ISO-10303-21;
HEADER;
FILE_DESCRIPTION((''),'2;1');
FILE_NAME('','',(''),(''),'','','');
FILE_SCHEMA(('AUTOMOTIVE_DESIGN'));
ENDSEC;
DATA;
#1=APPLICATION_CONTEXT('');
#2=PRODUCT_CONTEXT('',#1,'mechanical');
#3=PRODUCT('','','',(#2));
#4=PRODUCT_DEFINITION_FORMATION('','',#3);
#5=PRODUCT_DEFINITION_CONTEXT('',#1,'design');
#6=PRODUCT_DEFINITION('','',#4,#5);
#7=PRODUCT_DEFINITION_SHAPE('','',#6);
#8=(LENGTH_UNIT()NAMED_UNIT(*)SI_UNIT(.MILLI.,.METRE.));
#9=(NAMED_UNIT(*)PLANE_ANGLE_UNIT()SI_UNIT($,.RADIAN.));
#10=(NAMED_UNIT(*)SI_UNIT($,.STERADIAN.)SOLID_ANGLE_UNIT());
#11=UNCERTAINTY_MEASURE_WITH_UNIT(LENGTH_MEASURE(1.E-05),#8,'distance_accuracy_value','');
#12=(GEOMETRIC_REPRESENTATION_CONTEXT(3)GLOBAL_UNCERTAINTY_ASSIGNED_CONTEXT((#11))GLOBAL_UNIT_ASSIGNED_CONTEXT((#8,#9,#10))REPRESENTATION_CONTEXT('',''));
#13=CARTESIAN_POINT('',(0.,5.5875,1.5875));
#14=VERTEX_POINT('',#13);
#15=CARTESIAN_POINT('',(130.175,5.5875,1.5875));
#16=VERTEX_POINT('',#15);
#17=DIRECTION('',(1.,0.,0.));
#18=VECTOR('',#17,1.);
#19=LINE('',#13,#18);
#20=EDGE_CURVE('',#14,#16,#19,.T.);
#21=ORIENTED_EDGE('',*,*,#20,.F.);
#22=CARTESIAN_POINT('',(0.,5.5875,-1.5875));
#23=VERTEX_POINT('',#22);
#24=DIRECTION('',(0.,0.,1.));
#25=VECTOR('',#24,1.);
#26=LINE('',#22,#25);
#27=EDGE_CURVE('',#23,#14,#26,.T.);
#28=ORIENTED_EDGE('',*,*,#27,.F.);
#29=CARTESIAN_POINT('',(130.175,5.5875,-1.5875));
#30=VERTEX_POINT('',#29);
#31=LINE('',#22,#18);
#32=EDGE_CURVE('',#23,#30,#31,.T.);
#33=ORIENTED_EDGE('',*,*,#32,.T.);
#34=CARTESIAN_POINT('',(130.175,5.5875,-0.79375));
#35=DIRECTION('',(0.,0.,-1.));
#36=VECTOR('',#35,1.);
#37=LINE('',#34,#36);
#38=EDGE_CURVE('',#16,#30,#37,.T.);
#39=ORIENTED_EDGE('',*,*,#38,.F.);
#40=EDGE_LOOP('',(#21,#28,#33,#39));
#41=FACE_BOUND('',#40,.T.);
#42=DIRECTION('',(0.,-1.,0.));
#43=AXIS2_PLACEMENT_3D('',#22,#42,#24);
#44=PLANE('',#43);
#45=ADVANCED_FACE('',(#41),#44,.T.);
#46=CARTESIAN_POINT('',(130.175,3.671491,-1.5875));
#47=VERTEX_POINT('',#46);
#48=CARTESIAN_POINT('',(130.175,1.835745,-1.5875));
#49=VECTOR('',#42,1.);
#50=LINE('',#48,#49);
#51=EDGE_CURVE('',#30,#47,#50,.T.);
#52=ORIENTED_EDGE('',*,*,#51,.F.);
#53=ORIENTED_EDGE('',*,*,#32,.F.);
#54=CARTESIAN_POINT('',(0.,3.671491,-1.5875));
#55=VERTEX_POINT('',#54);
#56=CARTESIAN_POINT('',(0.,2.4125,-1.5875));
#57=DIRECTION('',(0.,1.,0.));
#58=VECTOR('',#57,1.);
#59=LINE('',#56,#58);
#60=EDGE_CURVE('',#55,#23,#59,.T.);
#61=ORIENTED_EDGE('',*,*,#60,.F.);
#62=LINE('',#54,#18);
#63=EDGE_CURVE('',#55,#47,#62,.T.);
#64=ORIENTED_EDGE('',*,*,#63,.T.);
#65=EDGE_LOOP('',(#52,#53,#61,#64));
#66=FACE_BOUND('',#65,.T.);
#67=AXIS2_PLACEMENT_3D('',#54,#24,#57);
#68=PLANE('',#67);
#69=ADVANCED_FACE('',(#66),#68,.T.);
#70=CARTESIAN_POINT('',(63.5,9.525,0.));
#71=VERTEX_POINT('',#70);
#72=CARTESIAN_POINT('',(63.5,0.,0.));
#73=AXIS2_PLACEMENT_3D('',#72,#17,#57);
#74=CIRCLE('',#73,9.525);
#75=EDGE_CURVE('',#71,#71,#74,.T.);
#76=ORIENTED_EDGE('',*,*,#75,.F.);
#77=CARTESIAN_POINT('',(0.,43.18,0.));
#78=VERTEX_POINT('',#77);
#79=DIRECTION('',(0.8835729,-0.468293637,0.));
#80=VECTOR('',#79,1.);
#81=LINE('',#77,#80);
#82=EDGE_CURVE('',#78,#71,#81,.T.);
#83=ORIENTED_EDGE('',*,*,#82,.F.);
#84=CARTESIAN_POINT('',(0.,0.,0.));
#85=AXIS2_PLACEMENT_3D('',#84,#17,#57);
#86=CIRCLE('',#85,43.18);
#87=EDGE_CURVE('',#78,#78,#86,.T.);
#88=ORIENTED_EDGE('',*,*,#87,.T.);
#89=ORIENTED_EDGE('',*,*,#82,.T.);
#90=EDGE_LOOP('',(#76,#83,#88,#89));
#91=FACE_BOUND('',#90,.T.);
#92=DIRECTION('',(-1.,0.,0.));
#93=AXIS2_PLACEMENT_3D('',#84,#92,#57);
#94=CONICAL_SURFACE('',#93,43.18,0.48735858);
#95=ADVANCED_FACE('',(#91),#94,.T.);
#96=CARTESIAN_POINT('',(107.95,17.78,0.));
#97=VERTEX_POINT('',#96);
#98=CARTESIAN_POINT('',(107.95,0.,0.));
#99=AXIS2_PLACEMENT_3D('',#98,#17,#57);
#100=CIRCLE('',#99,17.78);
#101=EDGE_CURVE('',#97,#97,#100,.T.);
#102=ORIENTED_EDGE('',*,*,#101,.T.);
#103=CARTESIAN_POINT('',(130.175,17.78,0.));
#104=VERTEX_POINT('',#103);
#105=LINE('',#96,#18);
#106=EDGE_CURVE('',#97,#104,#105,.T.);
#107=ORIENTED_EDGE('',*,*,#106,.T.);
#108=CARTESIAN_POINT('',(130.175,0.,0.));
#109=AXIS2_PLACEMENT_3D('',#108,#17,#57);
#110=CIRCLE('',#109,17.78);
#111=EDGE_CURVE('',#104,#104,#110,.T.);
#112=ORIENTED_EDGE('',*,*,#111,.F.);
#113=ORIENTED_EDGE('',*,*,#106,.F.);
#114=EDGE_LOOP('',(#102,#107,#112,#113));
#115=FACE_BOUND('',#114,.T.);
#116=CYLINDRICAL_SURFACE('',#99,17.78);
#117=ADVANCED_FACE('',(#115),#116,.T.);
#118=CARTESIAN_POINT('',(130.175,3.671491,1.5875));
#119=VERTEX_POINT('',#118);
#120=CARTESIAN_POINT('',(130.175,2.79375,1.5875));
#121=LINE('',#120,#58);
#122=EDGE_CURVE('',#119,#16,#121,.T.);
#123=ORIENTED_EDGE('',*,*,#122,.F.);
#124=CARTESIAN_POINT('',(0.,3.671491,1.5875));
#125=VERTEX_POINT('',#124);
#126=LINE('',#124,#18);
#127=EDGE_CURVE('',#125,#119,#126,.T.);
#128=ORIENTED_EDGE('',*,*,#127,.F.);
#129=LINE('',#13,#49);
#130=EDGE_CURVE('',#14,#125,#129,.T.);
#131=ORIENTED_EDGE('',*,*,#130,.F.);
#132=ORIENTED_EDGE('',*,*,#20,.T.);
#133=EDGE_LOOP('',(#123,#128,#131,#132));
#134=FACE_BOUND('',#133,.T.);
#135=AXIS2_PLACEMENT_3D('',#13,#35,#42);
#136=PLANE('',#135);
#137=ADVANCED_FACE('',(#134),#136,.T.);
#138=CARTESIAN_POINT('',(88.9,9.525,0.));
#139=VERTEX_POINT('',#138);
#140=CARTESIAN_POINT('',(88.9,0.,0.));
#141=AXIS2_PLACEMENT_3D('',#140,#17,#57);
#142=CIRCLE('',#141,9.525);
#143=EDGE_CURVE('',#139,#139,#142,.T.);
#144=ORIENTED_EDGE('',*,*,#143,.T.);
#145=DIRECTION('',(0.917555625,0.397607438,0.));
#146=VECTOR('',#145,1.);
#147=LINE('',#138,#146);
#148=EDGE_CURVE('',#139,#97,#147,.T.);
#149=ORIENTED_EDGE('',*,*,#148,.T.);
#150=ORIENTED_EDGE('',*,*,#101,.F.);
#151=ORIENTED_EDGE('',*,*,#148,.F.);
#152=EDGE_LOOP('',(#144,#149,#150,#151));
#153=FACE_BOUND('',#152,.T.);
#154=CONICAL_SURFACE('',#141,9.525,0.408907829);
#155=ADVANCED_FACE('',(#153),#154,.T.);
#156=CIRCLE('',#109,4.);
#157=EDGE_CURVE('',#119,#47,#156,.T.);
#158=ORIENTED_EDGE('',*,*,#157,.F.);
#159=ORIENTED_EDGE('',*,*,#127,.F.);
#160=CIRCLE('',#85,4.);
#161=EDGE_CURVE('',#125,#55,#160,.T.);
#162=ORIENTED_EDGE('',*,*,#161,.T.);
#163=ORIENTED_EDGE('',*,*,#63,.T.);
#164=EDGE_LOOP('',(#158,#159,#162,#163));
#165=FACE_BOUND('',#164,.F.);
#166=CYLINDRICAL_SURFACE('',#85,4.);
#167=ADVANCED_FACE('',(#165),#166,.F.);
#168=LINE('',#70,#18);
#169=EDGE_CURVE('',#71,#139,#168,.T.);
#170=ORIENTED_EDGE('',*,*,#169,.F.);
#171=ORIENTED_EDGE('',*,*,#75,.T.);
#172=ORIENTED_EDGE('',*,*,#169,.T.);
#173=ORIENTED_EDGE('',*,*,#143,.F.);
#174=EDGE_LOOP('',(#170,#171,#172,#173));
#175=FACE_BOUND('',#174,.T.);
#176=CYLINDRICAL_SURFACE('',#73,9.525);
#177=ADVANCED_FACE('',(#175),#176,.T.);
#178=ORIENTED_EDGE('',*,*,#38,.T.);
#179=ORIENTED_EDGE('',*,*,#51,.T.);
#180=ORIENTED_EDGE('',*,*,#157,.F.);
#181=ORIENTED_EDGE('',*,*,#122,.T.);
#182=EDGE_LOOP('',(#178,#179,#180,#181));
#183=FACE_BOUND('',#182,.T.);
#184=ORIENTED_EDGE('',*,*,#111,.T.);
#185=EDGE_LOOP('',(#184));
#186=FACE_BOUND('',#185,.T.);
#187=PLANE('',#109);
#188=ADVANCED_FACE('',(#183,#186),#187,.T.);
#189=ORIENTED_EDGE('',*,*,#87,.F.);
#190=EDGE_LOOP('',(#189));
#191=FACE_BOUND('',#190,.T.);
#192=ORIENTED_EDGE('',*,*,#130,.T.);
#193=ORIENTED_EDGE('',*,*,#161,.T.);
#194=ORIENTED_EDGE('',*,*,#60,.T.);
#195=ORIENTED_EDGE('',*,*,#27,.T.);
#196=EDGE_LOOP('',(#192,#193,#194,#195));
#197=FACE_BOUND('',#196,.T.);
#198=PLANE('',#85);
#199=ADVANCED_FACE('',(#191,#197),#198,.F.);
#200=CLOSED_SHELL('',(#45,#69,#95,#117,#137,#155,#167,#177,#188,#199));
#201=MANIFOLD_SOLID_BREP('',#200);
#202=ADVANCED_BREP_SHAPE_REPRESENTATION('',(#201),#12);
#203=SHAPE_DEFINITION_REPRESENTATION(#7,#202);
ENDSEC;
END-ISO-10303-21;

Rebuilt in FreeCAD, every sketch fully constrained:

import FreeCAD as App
import Part
import Sketcher

V = App.Vector
Q = App.Units.Quantity

doc = App.newDocument("Part")
body = doc.addObject("PartDesign::Body", "Body")

# Sketch on XY plane
sketch1 = body.newObject("Sketcher::SketchObject", "Sketch")
sketch1.AttachmentSupport = (doc.getObject("XY_Plane"), [""])
sketch1.MapMode = "FlatFace"
sketch1.addGeometry(Part.LineSegment(V(0, 43, 0), V(0, 4, 0)), False)
sketch1.addGeometry(Part.LineSegment(V(0, 4, 0), V(130, 4, 0)), False)
sketch1.addGeometry(Part.LineSegment(V(130, 4, 0), V(130, 18, 0)), False)
sketch1.addGeometry(Part.LineSegment(V(130, 18, 0), V(108, 18, 0)), False)
sketch1.addGeometry(Part.LineSegment(V(108, 18, 0), V(89, 10, 0)), False)
sketch1.addGeometry(Part.LineSegment(V(89, 10, 0), V(64, 10, 0)), False)
sketch1.addGeometry(Part.LineSegment(V(64, 10, 0), V(0, 43, 0)), False)
sketch1.addConstraint(Sketcher.Constraint("Coincident", 0, 2, 1, 1))
sketch1.addConstraint(Sketcher.Constraint("Coincident", 1, 2, 2, 1))
sketch1.addConstraint(Sketcher.Constraint("Coincident", 2, 2, 3, 1))
sketch1.addConstraint(Sketcher.Constraint("Coincident", 3, 2, 4, 1))
sketch1.addConstraint(Sketcher.Constraint("Coincident", 4, 2, 5, 1))
sketch1.addConstraint(Sketcher.Constraint("Coincident", 5, 2, 6, 1))
sketch1.addConstraint(Sketcher.Constraint("Coincident", 6, 2, 0, 1))
sketch1.addConstraint(Sketcher.Constraint("Vertical", 0))
sketch1.addConstraint(Sketcher.Constraint("Horizontal", 1))
sketch1.addConstraint(Sketcher.Constraint("Vertical", 2))
sketch1.addConstraint(Sketcher.Constraint("Horizontal", 3))
sketch1.addConstraint(Sketcher.Constraint("Horizontal", 5))
sketch1.addConstraint(Sketcher.Constraint("PointOnObject", 0, 2, -2))
sketch1.addConstraint(Sketcher.Constraint("DistanceX", 5, 2, 5, 1, Q("1 in")))
sketch1.addConstraint(Sketcher.Constraint("DistanceY", 3, 2, 6, 2, Q("1 in")))
sketch1.addConstraint(Sketcher.Constraint("DistanceY", -1, 1, 2, 2, Q("0.7 in")))
sketch1.addConstraint(Sketcher.Constraint("DistanceX", -1, 1, 5, 2, Q("2.5 in")))
sketch1.addConstraint(Sketcher.Constraint("DistanceX", 3, 2, 3, 1, Q("0.875 in")))
sketch1.addConstraint(Sketcher.Constraint("DistanceX", 4, 2, 3, 2, Q("0.75 in")))
sketch1.addConstraint(Sketcher.Constraint("DistanceY", -1, 1, 4, 2, Q("0.375 in")))
sketch1.addConstraint(Sketcher.Constraint("DistanceY", -1, 1, 0, 2, 4.0))
revolution = body.newObject("PartDesign::Revolution", "Revolution")
revolution.Profile = sketch1
revolution.ReferenceAxis = (sketch1, ["H_Axis"])
revolution.Angle = 360

# Sketch on YZ plane
sketch2 = body.newObject("Sketcher::SketchObject", "Sketch001")
sketch2.AttachmentSupport = (doc.getObject("YZ_Plane"), [""])
sketch2.MapMode = "FlatFace"
sketch2.addGeometry(Part.LineSegment(V(5.6, 1.6, 0), V(5.6, -1.6, 0)), False)
sketch2.addGeometry(Part.LineSegment(V(5.6, -1.6, 0), V(2.4, -1.6, 0)), False)
sketch2.addGeometry(Part.LineSegment(V(2.4, -1.6, 0), V(2.4, 1.6, 0)), False)
sketch2.addGeometry(Part.LineSegment(V(2.4, 1.6, 0), V(5.6, 1.6, 0)), False)
sketch2.addConstraint(Sketcher.Constraint("Coincident", 0, 2, 1, 1))
sketch2.addConstraint(Sketcher.Constraint("Coincident", 1, 2, 2, 1))
sketch2.addConstraint(Sketcher.Constraint("Coincident", 2, 2, 3, 1))
sketch2.addConstraint(Sketcher.Constraint("Coincident", 3, 2, 0, 1))
sketch2.addConstraint(Sketcher.Constraint("Vertical", 0))
sketch2.addConstraint(Sketcher.Constraint("Horizontal", 1))
sketch2.addConstraint(Sketcher.Constraint("Vertical", 2))
sketch2.addConstraint(Sketcher.Constraint("Horizontal", 3))
sketch2.addConstraint(Sketcher.Constraint("Equal", 3, 0))
sketch2.addConstraint(Sketcher.Constraint("DistanceX", 1, 2, 1, 1, Q("0.125 in")))
sketch2.addConstraint(Sketcher.Constraint("DistanceY", 0, 2, -1, 1, Q("0.0625 in")))
sketch2.addConstraint(Sketcher.Constraint("DistanceX", -1, 1, 0, 2, 5.5875))
pocket1 = body.newObject("PartDesign::Pocket", "Pocket")
pocket1.Profile = sketch2
pocket1.Type = "ThroughAll"
pocket1.Reversed = True

doc.recompute()
